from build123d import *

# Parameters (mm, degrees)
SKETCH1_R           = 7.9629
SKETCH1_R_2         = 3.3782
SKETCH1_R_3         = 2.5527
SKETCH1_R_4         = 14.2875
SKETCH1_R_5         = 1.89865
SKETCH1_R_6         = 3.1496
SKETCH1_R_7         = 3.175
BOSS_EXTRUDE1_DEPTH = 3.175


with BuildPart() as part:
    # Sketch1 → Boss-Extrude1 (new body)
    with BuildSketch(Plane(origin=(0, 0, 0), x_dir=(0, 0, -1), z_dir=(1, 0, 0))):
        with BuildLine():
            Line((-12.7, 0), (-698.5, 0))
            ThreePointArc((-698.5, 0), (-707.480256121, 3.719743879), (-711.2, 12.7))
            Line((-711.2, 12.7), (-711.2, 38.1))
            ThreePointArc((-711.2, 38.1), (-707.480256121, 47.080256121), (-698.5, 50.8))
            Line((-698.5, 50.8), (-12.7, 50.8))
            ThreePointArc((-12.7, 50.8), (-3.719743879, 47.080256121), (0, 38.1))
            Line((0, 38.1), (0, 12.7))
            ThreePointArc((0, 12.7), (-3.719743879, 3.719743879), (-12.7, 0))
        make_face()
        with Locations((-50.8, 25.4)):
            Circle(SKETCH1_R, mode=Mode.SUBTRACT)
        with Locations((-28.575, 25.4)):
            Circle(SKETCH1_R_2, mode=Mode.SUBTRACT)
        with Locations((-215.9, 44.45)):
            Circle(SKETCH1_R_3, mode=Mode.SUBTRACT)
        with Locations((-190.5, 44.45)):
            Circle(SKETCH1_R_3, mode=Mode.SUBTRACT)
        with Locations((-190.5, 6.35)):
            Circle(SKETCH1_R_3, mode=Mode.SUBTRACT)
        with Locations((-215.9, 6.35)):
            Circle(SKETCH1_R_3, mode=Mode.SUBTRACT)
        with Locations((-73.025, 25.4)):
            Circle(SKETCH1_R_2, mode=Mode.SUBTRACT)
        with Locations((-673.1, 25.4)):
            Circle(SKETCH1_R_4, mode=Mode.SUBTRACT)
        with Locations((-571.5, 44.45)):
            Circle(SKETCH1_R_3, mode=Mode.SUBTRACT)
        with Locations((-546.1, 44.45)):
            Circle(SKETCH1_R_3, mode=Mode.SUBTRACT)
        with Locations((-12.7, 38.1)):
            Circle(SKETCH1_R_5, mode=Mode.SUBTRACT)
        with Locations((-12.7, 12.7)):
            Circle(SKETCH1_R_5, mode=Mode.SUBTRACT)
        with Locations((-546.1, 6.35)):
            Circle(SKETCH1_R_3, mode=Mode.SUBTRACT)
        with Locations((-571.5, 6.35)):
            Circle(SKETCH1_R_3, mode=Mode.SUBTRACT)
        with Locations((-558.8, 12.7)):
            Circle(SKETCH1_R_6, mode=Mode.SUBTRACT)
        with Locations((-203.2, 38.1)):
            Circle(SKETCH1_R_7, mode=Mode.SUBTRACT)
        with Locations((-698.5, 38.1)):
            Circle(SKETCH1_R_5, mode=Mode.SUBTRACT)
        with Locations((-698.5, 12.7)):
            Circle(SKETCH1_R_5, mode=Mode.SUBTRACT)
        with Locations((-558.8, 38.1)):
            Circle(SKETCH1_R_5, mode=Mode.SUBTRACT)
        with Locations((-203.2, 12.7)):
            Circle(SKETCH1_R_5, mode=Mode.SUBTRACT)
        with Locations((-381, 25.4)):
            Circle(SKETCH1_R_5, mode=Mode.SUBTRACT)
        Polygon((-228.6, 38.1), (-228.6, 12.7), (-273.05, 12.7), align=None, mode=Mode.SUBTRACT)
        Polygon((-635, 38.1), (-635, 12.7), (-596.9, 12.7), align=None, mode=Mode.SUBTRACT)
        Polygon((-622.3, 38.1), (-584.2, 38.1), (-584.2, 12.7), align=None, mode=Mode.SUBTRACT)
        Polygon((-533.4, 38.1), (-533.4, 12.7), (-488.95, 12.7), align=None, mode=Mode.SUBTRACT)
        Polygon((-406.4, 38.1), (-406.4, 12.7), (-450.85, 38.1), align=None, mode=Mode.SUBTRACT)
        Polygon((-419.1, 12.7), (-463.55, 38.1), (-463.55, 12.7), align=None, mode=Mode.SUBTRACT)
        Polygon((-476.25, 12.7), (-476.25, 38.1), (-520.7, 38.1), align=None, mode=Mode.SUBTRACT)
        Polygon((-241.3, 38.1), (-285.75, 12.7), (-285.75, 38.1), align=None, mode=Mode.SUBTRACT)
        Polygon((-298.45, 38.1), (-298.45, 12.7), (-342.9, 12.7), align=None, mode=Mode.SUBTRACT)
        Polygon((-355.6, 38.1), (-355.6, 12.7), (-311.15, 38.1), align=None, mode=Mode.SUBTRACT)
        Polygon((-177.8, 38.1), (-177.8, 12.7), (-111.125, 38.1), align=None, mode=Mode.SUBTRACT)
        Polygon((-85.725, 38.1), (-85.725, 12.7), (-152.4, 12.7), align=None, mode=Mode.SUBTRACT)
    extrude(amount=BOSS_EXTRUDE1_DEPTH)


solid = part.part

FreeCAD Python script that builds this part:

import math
import FreeCAD as App
import Part
import Sketcher
Q = App.Units.Quantity


def add_polygon(sketch, points):
    """Adds a closed chain of lines whose ends are joined by coincident constraints."""
    first, n = sketch.GeometryCount, len(points)
    for a, b in zip(points, points[1:] + points[:1]):
        sketch.addGeometry(Part.LineSegment(App.Vector(*a, 0), App.Vector(*b, 0)), False)
    for i in range(n):
        sketch.addConstraint(Sketcher.Constraint("Coincident", first + i, 2, first + (i + 1) % n, 1))

doc = App.newDocument("Part")
body = doc.addObject("PartDesign::Body", "Body")

# Sketch on YZ plane
sketch1 = body.newObject("Sketcher::SketchObject", "Sketch")
sketch1.AttachmentSupport = (doc.getObject("YZ_Plane"), [""])
sketch1.MapMode = "FlatFace"
sketch1.addGeometry(Part.LineSegment(App.Vector(0, 698.5, 0), App.Vector(0, 12.7, 0)), False)  # 0
sketch1.addGeometry(Part.ArcOfCircle(Part.Circle(App.Vector(12.7, 12.7, 0), App.Vector(0, 0, 1), 12.7), math.radians(180), math.radians(270)), False)  # 1
sketch1.addGeometry(Part.LineSegment(App.Vector(12.7, 0, 0), App.Vector(38.1, 0, 0)), False)  # 2
sketch1.addGeometry(Part.ArcOfCircle(Part.Circle(App.Vector(38.1, 12.7, 0), App.Vector(0, 0, 1), 12.7), math.radians(-90), math.radians(0)), False)  # 3
sketch1.addGeometry(Part.LineSegment(App.Vector(50.8, 12.7, 0), App.Vector(50.8, 698.5, 0)), False)  # 4
sketch1.addGeometry(Part.ArcOfCircle(Part.Circle(App.Vector(38.1, 698.5, 0), App.Vector(0, 0, 1), 12.7), math.radians(0), math.radians(90)), False)  # 5
sketch1.addGeometry(Part.LineSegment(App.Vector(38.1, 711.2, 0), App.Vector(12.7, 711.2, 0)), False)  # 6
sketch1.addGeometry(Part.ArcOfCircle(Part.Circle(App.Vector(12.7, 698.5, 0), App.Vector(0, 0, 1), 12.7), math.radians(90), math.radians(180)), False)  # 7
sketch1.addGeometry(Part.Circle(App.Vector(12.7, 12.7, 0), App.Vector(0, 0, 1), 1.89865), False)  # 8
sketch1.addGeometry(Part.Circle(App.Vector(6.35, 190.5, 0), App.Vector(0, 0, 1), 2.5527), False)  # 9
sketch1.addGeometry(Part.Circle(App.Vector(6.35, 215.9, 0), App.Vector(0, 0, 1), 2.5527), False)  # 10
sketch1.addGeometry(Part.Circle(App.Vector(12.7, 203.2, 0), App.Vector(0, 0, 1), 1.89865), False)  # 11
sketch1.addGeometry(Part.Circle(App.Vector(25.4, 28.575, 0), App.Vector(0, 0, 1), 3.3782), False)  # 12
sketch1.addGeometry(Part.Circle(App.Vector(25.4, 50.8, 0), App.Vector(0, 0, 1), 7.9629), False)  # 13
sketch1.addGeometry(Part.Circle(App.Vector(25.4, 73.025, 0), App.Vector(0, 0, 1), 3.3782), False)  # 14
sketch1.addGeometry(Part.Circle(App.Vector(6.35, 546.1, 0), App.Vector(0, 0, 1), 2.5527), False)  # 15
sketch1.addGeometry(Part.Circle(App.Vector(6.35, 571.5, 0), App.Vector(0, 0, 1), 2.5527), False)  # 16
sketch1.addGeometry(Part.Circle(App.Vector(12.7, 558.8, 0), App.Vector(0, 0, 1), 3.1496), False)  # 17
sketch1.addGeometry(Part.Circle(App.Vector(12.7, 698.5, 0), App.Vector(0, 0, 1), 1.89865), False)  # 18
sketch1.addGeometry(Part.Circle(App.Vector(25.4, 381, 0), App.Vector(0, 0, 1), 1.89865), False)  # 19
sketch1.addGeometry(Part.Circle(App.Vector(25.4, 673.1, 0), App.Vector(0, 0, 1), 14.2875), False)  # 20
add_polygon(sketch1, [(38.1, 85.725), (12.7, 85.725), (12.7, 152.4)])  # lines 21-23
add_polygon(sketch1, [(38.1, 177.8), (38.1, 111.125), (12.7, 177.8)])  # lines 24-26
add_polygon(sketch1, [(38.1, 228.6), (12.7, 228.6), (12.7, 273.05)])  # lines 27-29
add_polygon(sketch1, [(38.1, 241.3), (12.7, 285.75), (38.1, 285.75)])  # lines 30-32
add_polygon(sketch1, [(38.1, 298.45), (12.7, 298.45), (12.7, 342.9)])  # lines 33-35
add_polygon(sketch1, [(38.1, 355.6), (38.1, 311.15), (12.7, 355.6)])  # lines 36-38
sketch1.addGeometry(Part.Circle(App.Vector(38.1, 12.7, 0), App.Vector(0, 0, 1), 1.89865), False)  # 39
sketch1.addGeometry(Part.Circle(App.Vector(38.1, 203.2, 0), App.Vector(0, 0, 1), 3.175), False)  # 40
sketch1.addGeometry(Part.Circle(App.Vector(44.45, 190.5, 0), App.Vector(0, 0, 1), 2.5527), False)  # 41
sketch1.addGeometry(Part.Circle(App.Vector(44.45, 215.9, 0), App.Vector(0, 0, 1), 2.5527), False)  # 42
add_polygon(sketch1, [(38.1, 406.4), (12.7, 406.4), (38.1, 450.85)])  # lines 43-45
add_polygon(sketch1, [(12.7, 419.1), (12.7, 463.55), (38.1, 463.55)])  # lines 46-48
add_polygon(sketch1, [(12.7, 476.25), (38.1, 520.7), (38.1, 476.25)])  # lines 49-51
add_polygon(sketch1, [(38.1, 533.4), (12.7, 488.95), (12.7, 533.4)])  # lines 52-54
add_polygon(sketch1, [(38.1, 622.3), (38.1, 584.2), (12.7, 584.2)])  # lines 55-57
add_polygon(sketch1, [(38.1, 635), (12.7, 596.9), (12.7, 635)])  # lines 58-60
sketch1.addGeometry(Part.Circle(App.Vector(38.1, 558.8, 0), App.Vector(0, 0, 1), 1.89865), False)  # 61
sketch1.addGeometry(Part.Circle(App.Vector(38.1, 698.5, 0), App.Vector(0, 0, 1), 1.89865), False)  # 62
sketch1.addGeometry(Part.Circle(App.Vector(44.45, 546.1, 0), App.Vector(0, 0, 1), 2.5527), False)  # 63
sketch1.addGeometry(Part.Circle(App.Vector(44.45, 571.5, 0), App.Vector(0, 0, 1), 2.5527), False)  # 64
sketch1.addConstraint(Sketcher.Constraint("Tangent", 0, 2, 1, 1))
sketch1.addConstraint(Sketcher.Constraint("Tangent", 1, 2, 2, 1))
sketch1.addConstraint(Sketcher.Constraint("Tangent", 2, 2, 3, 1))
sketch1.addConstraint(Sketcher.Constraint("Tangent", 3, 2, 4, 1))
sketch1.addConstraint(Sketcher.Constraint("Tangent", 4, 2, 5, 1))
sketch1.addConstraint(Sketcher.Constraint("Tangent", 5, 2, 6, 1))
sketch1.addConstraint(Sketcher.Constraint("Tangent", 6, 2, 7, 1))
sketch1.addConstraint(Sketcher.Constraint("Tangent", 7, 2, 0, 1))
sketch1.addConstraint(Sketcher.Constraint("Vertical", 0))
sketch1.addConstraint(Sketcher.Constraint("Horizontal", 2))
sketch1.addConstraint(Sketcher.Constraint("Vertical", 4))
sketch1.addConstraint(Sketcher.Constraint("Horizontal", 6))
sketch1.addConstraint(Sketcher.Constraint("Horizontal", 21))
sketch1.addConstraint(Sketcher.Constraint("Vertical", 22))
sketch1.addConstraint(Sketcher.Constraint("Vertical", 24))
sketch1.addConstraint(Sketcher.Constraint("Horizontal", 26))
sketch1.addConstraint(Sketcher.Constraint("Horizontal", 27))
sketch1.addConstraint(Sketcher.Constraint("Vertical", 28))
sketch1.addConstraint(Sketcher.Constraint("Horizontal", 31))
sketch1.addConstraint(Sketcher.Constraint("Vertical", 32))
sketch1.addConstraint(Sketcher.Constraint("Horizontal", 33))
sketch1.addConstraint(Sketcher.Constraint("Vertical", 34))
sketch1.addConstraint(Sketcher.Constraint("Vertical", 36))
sketch1.addConstraint(Sketcher.Constraint("Horizontal", 38))
sketch1.addConstraint(Sketcher.Constraint("Horizontal", 43))
sketch1.addConstraint(Sketcher.Constraint("Vertical", 45))
sketch1.addConstraint(Sketcher.Constraint("Vertical", 46))
sketch1.addConstraint(Sketcher.Constraint("Horizontal", 47))
sketch1.addConstraint(Sketcher.Constraint("Vertical", 50))
sketch1.addConstraint(Sketcher.Constraint("Horizontal", 51))
sketch1.addConstraint(Sketcher.Constraint("Vertical", 53))
sketch1.addConstraint(Sketcher.Constraint("Horizontal", 54))
sketch1.addConstraint(Sketcher.Constraint("Vertical", 55))
sketch1.addConstraint(Sketcher.Constraint("Horizontal", 56))
sketch1.addConstraint(Sketcher.Constraint("Vertical", 59))
sketch1.addConstraint(Sketcher.Constraint("Horizontal", 60))
sketch1.addConstraint(Sketcher.Constraint("Coincident", 8, 3, 1, 3))
sketch1.addConstraint(Sketcher.Constraint("Coincident", 18, 3, 7, 3))
sketch1.addConstraint(Sketcher.Constraint("Coincident", 39, 3, 3, 3))
sketch1.addConstraint(Sketcher.Constraint("Coincident", 62, 3, 5, 3))
sketch1.addConstraint(Sketcher.Constraint("Equal", 1, 3))
sketch1.addConstraint(Sketcher.Constraint("Equal", 3, 5))
sketch1.addConstraint(Sketcher.Constraint("Equal", 5, 7))
sketch1.addConstraint(Sketcher.Constraint("Equal", 9, 10))
sketch1.addConstraint(Sketcher.Constraint("Equal", 8, 11))
sketch1.addConstraint(Sketcher.Constraint("Equal", 12, 14))
sketch1.addConstraint(Sketcher.Constraint("Equal", 10, 15))
sketch1.addConstraint(Sketcher.Constraint("Equal", 15, 16))
sketch1.addConstraint(Sketcher.Constraint("Equal", 11, 18))
sketch1.addConstraint(Sketcher.Constraint("Equal", 18, 19))
sketch1.addConstraint(Sketcher.Constraint("Equal", 19, 39))
sketch1.addConstraint(Sketcher.Constraint("Equal", 16, 41))
sketch1.addConstraint(Sketcher.Constraint("Equal", 41, 42))
sketch1.addConstraint(Sketcher.Constraint("Equal", 39, 61))
sketch1.addConstraint(Sketcher.Constraint("Equal", 61, 62))
sketch1.addConstraint(Sketcher.Constraint("Equal", 42, 63))
sketch1.addConstraint(Sketcher.Constraint("Equal", 63, 64))
sketch1.addConstraint(Sketcher.Constraint("PointOnObject", 0, 2, -2))
sketch1.addConstraint(Sketcher.Constraint("PointOnObject", 1, 2, -1))
sketch1.addConstraint(Sketcher.Constraint("Parallel", 23, 25))
sketch1.addConstraint(Sketcher.Constraint("Parallel", 29, 30))
sketch1.addConstraint(Sketcher.Constraint("Parallel", 30, 35))
sketch1.addConstraint(Sketcher.Constraint("Parallel", 35, 37))
sketch1.addConstraint(Sketcher.Constraint("Parallel", 44, 48))
sketch1.addConstraint(Sketcher.Constraint("Parallel", 48, 49))
sketch1.addConstraint(Sketcher.Constraint("Parallel", 49, 52))
sketch1.addConstraint(Sketcher.Constraint("Parallel", 57, 58))
sketch1.addConstraint(Sketcher.Constraint("Horizontal", 11, 3, 40, 3))
sketch1.addConstraint(Sketcher.Constraint("Horizontal", 9, 3, 41, 3))
sketch1.addConstraint(Sketcher.Constraint("Horizontal", 10, 3, 42, 3))
sketch1.addConstraint(Sketcher.Constraint("Horizontal", 17, 3, 61, 3))
sketch1.addConstraint(Sketcher.Constraint("Horizontal", 15, 3, 63, 3))
sketch1.addConstraint(Sketcher.Constraint("Horizontal", 16, 3, 64, 3))
sketch1.addConstraint(Sketcher.Constraint("Vertical", 9, 3, 10, 3))
sketch1.addConstraint(Sketcher.Constraint("Vertical", 8, 3, 11, 3))
sketch1.addConstraint(Sketcher.Constraint("Vertical", 12, 3, 13, 3))
sketch1.addConstraint(Sketcher.Constraint("Vertical", 13, 3, 14, 3))
sketch1.addConstraint(Sketcher.Constraint("Vertical", 10, 3, 15, 3))
sketch1.addConstraint(Sketcher.Constraint("Vertical", 15, 3, 16, 3))
sketch1.addConstraint(Sketcher.Constraint("Vertical", 11, 3, 17, 3))
sketch1.addConstraint(Sketcher.Constraint("Vertical", 14, 3, 19, 3))
sketch1.addConstraint(Sketcher.Constraint("Vertical", 19, 3, 20, 3))
sketch1.addConstraint(Sketcher.Constraint("Vertical", 39, 3, 40, 3))
sketch1.addConstraint(Sketcher.Constraint("Vertical", 41, 3, 42, 3))
sketch1.addConstraint(Sketcher.Constraint("Vertical", 40, 3, 61, 3))
sketch1.addConstraint(Sketcher.Constraint("Vertical", 42, 3, 63, 3))
sketch1.addConstraint(Sketcher.Constraint("Vertical", 63, 3, 64, 3))
sketch1.addConstraint(Sketcher.Constraint("Vertical", 6, 2, 21, 2))
sketch1.addConstraint(Sketcher.Constraint("Vertical", 5, 2, 23, 2))
sketch1.addConstraint(Sketcher.Constraint("Vertical", 23, 2, 24, 2))
sketch1.addConstraint(Sketcher.Constraint("Vertical", 22, 2, 25, 2))
sketch1.addConstraint(Sketcher.Constraint("Vertical", 25, 2, 27, 2))
sketch1.addConstraint(Sketcher.Constraint("Vertical", 26, 2, 29, 2))
sketch1.addConstraint(Sketcher.Constraint("Vertical", 28, 2, 30, 2))
sketch1.addConstraint(Sketcher.Constraint("Vertical", 29, 2, 31, 2))
sketch1.addConstraint(Sketcher.Constraint("Vertical", 30, 2, 33, 2))
sketch1.addConstraint(Sketcher.Constraint("Vertical", 32, 2, 35, 2))
sketch1.addConstraint(Sketcher.Constraint("Vertical", 35, 2, 36, 2))
sketch1.addConstraint(Sketcher.Constraint("Vertical", 34, 2, 37, 2))
sketch1.addConstraint(Sketcher.Constraint("Vertical", 37, 2, 43, 2))
sketch1.addConstraint(Sketcher.Constraint("Vertical", 38, 2, 44, 2))
sketch1.addConstraint(Sketcher.Constraint("Vertical", 43, 2, 46, 2))
sketch1.addConstraint(Sketcher.Constraint("Vertical", 45, 2, 47, 2))
sketch1.addConstraint(Sketcher.Constraint("Vertical", 47, 2, 49, 2))
sketch1.addConstraint(Sketcher.Constraint("Vertical", 48, 2, 51, 2))
sketch1.addConstraint(Sketcher.Constraint("Vertical", 51, 2, 52, 2))
sketch1.addConstraint(Sketcher.Constraint("Vertical", 50, 2, 54, 2))
sketch1.addConstraint(Sketcher.Constraint("Vertical", 54, 2, 55, 2))
sketch1.addConstraint(Sketcher.Constraint("Vertical", 53, 2, 56, 2))
sketch1.addConstraint(Sketcher.Constraint("Vertical", 56, 2, 58, 2))
sketch1.addConstraint(Sketcher.Constraint("Vertical", 57, 2, 60, 2))
sketch1.addConstraint(Sketcher.Constraint("Equal", 36, 45))
sketch1.addConstraint(Sketcher.Constraint("Radius", 1, Q("0.5 in")))
sketch1.addConstraint(Sketcher.Constraint("Diameter", 40, Q("0.25 in")))
sketch1.addConstraint(Sketcher.Constraint("DistanceX", 2, 1, 2, 2, Q("1 in")))
sketch1.addConstraint(Sketcher.Constraint("DistanceY", 0, 2, 0, 1, Q("27 in")))
sketch1.addConstraint(Sketcher.Constraint("Diameter", 9, Q("0.201 in")))
sketch1.addConstraint(Sketcher.Constraint("Diameter", 12, Q("0.266 in")))
sketch1.addConstraint(Sketcher.Constraint("Diameter", 13, Q("0.627 in")))
sketch1.addConstraint(Sketcher.Constraint("Diameter", 17, Q("0.248 in")))
sketch1.addConstraint(Sketcher.Constraint("Diameter", 20, Q("1.125 in")))
sketch1.addConstraint(Sketcher.Constraint("DistanceY", 55, 2, 55, 1, Q("1.5 in")))
sketch1.addConstraint(Sketcher.Constraint("DistanceY", -1, 1, 11, 3, Q("8 in")))
sketch1.addConstraint(Sketcher.Constraint("DistanceX", -1, 1, 12, 3, Q("1 in")))
sketch1.addConstraint(Sketcher.Constraint("DistanceY", -1, 1, 13, 3, Q("2 in")))
sketch1.addConstraint(Sketcher.Constraint("DistanceY", -1, 1, 17, 3, Q("22 in")))
sketch1.addConstraint(Sketcher.Constraint("DistanceY", -1, 1, 19, 3, Q("15 in")))
sketch1.addConstraint(Sketcher.Constraint("DistanceY", -1, 1, 22, 2, Q("6 in")))
sketch1.addConstraint(Sketcher.Constraint("DistanceY", -1, 1, 25, 2, Q("7 in")))
sketch1.addConstraint(Sketcher.Constraint("DistanceY", -1, 1, 27, 2, Q("9 in")))
sketch1.addConstraint(Sketcher.Constraint("DistanceY", -1, 1, 37, 2, Q("14 in")))
sketch1.addConstraint(Sketcher.Constraint("DistanceY", -1, 1, 43, 2, Q("16 in")))
sketch1.addConstraint(Sketcher.Constraint("DistanceY", -1, 1, 53, 2, Q("21 in")))
sketch1.addConstraint(Sketcher.Constraint("DistanceY", -1, 1, 55, 2, Q("23 in")))
sketch1.addConstraint(Sketcher.Constraint("DistanceY", -1, 1, 59, 2, Q("25 in")))
sketch1.addConstraint(Sketcher.Constraint("Diameter", 8, Q("0.1495 in")))
sketch1.addConstraint(Sketcher.Constraint("DistanceY", 28, 1, 28, 2, Q("1.75 in")))
sketch1.addConstraint(Sketcher.Constraint("DistanceY", -1, 1, 9, 3, Q("7.5 in")))
sketch1.addConstraint(Sketcher.Constraint("DistanceY", -1, 1, 10, 3, Q("8.5 in")))
sketch1.addConstraint(Sketcher.Constraint("DistanceY", -1, 1, 15, 3, Q("21.5 in")))
sketch1.addConstraint(Sketcher.Constraint("DistanceY", -1, 1, 16, 3, Q("22.5 in")))
sketch1.addConstraint(Sketcher.Constraint("DistanceY", -1, 1, 20, 3, Q("26.5 in")))
sketch1.addConstraint(Sketcher.Constraint("DistanceY", -1, 1, 32, 2, Q("9.5 in")))
sketch1.addConstraint(Sketcher.Constraint("DistanceY", -1, 1, 34, 2, Q("13.5 in")))
sketch1.addConstraint(Sketcher.Constraint("DistanceY", -1, 1, 48, 2, Q("16.5 in")))
sketch1.addConstraint(Sketcher.Constraint("DistanceY", -1, 1, 49, 2, Q("20.5 in")))
sketch1.addConstraint(Sketcher.Constraint("DistanceY", 22, 1, 22, 2, Q("2.625 in")))
sketch1.addConstraint(Sketcher.Constraint("DistanceX", -1, 1, 9, 3, Q("0.25 in")))
sketch1.addConstraint(Sketcher.Constraint("DistanceX", -1, 1, 41, 3, Q("1.75 in")))
sketch1.addConstraint(Sketcher.Constraint("DistanceY", -1, 1, 12, 3, Q("1.125 in")))
sketch1.addConstraint(Sketcher.Constraint("DistanceY", -1, 1, 14, 3, Q("2.875 in")))
pad1 = body.newObject("PartDesign::Pad", "Pad")
pad1.Profile = sketch1
pad1.Length = Q("0.125 in")

doc.recompute()
